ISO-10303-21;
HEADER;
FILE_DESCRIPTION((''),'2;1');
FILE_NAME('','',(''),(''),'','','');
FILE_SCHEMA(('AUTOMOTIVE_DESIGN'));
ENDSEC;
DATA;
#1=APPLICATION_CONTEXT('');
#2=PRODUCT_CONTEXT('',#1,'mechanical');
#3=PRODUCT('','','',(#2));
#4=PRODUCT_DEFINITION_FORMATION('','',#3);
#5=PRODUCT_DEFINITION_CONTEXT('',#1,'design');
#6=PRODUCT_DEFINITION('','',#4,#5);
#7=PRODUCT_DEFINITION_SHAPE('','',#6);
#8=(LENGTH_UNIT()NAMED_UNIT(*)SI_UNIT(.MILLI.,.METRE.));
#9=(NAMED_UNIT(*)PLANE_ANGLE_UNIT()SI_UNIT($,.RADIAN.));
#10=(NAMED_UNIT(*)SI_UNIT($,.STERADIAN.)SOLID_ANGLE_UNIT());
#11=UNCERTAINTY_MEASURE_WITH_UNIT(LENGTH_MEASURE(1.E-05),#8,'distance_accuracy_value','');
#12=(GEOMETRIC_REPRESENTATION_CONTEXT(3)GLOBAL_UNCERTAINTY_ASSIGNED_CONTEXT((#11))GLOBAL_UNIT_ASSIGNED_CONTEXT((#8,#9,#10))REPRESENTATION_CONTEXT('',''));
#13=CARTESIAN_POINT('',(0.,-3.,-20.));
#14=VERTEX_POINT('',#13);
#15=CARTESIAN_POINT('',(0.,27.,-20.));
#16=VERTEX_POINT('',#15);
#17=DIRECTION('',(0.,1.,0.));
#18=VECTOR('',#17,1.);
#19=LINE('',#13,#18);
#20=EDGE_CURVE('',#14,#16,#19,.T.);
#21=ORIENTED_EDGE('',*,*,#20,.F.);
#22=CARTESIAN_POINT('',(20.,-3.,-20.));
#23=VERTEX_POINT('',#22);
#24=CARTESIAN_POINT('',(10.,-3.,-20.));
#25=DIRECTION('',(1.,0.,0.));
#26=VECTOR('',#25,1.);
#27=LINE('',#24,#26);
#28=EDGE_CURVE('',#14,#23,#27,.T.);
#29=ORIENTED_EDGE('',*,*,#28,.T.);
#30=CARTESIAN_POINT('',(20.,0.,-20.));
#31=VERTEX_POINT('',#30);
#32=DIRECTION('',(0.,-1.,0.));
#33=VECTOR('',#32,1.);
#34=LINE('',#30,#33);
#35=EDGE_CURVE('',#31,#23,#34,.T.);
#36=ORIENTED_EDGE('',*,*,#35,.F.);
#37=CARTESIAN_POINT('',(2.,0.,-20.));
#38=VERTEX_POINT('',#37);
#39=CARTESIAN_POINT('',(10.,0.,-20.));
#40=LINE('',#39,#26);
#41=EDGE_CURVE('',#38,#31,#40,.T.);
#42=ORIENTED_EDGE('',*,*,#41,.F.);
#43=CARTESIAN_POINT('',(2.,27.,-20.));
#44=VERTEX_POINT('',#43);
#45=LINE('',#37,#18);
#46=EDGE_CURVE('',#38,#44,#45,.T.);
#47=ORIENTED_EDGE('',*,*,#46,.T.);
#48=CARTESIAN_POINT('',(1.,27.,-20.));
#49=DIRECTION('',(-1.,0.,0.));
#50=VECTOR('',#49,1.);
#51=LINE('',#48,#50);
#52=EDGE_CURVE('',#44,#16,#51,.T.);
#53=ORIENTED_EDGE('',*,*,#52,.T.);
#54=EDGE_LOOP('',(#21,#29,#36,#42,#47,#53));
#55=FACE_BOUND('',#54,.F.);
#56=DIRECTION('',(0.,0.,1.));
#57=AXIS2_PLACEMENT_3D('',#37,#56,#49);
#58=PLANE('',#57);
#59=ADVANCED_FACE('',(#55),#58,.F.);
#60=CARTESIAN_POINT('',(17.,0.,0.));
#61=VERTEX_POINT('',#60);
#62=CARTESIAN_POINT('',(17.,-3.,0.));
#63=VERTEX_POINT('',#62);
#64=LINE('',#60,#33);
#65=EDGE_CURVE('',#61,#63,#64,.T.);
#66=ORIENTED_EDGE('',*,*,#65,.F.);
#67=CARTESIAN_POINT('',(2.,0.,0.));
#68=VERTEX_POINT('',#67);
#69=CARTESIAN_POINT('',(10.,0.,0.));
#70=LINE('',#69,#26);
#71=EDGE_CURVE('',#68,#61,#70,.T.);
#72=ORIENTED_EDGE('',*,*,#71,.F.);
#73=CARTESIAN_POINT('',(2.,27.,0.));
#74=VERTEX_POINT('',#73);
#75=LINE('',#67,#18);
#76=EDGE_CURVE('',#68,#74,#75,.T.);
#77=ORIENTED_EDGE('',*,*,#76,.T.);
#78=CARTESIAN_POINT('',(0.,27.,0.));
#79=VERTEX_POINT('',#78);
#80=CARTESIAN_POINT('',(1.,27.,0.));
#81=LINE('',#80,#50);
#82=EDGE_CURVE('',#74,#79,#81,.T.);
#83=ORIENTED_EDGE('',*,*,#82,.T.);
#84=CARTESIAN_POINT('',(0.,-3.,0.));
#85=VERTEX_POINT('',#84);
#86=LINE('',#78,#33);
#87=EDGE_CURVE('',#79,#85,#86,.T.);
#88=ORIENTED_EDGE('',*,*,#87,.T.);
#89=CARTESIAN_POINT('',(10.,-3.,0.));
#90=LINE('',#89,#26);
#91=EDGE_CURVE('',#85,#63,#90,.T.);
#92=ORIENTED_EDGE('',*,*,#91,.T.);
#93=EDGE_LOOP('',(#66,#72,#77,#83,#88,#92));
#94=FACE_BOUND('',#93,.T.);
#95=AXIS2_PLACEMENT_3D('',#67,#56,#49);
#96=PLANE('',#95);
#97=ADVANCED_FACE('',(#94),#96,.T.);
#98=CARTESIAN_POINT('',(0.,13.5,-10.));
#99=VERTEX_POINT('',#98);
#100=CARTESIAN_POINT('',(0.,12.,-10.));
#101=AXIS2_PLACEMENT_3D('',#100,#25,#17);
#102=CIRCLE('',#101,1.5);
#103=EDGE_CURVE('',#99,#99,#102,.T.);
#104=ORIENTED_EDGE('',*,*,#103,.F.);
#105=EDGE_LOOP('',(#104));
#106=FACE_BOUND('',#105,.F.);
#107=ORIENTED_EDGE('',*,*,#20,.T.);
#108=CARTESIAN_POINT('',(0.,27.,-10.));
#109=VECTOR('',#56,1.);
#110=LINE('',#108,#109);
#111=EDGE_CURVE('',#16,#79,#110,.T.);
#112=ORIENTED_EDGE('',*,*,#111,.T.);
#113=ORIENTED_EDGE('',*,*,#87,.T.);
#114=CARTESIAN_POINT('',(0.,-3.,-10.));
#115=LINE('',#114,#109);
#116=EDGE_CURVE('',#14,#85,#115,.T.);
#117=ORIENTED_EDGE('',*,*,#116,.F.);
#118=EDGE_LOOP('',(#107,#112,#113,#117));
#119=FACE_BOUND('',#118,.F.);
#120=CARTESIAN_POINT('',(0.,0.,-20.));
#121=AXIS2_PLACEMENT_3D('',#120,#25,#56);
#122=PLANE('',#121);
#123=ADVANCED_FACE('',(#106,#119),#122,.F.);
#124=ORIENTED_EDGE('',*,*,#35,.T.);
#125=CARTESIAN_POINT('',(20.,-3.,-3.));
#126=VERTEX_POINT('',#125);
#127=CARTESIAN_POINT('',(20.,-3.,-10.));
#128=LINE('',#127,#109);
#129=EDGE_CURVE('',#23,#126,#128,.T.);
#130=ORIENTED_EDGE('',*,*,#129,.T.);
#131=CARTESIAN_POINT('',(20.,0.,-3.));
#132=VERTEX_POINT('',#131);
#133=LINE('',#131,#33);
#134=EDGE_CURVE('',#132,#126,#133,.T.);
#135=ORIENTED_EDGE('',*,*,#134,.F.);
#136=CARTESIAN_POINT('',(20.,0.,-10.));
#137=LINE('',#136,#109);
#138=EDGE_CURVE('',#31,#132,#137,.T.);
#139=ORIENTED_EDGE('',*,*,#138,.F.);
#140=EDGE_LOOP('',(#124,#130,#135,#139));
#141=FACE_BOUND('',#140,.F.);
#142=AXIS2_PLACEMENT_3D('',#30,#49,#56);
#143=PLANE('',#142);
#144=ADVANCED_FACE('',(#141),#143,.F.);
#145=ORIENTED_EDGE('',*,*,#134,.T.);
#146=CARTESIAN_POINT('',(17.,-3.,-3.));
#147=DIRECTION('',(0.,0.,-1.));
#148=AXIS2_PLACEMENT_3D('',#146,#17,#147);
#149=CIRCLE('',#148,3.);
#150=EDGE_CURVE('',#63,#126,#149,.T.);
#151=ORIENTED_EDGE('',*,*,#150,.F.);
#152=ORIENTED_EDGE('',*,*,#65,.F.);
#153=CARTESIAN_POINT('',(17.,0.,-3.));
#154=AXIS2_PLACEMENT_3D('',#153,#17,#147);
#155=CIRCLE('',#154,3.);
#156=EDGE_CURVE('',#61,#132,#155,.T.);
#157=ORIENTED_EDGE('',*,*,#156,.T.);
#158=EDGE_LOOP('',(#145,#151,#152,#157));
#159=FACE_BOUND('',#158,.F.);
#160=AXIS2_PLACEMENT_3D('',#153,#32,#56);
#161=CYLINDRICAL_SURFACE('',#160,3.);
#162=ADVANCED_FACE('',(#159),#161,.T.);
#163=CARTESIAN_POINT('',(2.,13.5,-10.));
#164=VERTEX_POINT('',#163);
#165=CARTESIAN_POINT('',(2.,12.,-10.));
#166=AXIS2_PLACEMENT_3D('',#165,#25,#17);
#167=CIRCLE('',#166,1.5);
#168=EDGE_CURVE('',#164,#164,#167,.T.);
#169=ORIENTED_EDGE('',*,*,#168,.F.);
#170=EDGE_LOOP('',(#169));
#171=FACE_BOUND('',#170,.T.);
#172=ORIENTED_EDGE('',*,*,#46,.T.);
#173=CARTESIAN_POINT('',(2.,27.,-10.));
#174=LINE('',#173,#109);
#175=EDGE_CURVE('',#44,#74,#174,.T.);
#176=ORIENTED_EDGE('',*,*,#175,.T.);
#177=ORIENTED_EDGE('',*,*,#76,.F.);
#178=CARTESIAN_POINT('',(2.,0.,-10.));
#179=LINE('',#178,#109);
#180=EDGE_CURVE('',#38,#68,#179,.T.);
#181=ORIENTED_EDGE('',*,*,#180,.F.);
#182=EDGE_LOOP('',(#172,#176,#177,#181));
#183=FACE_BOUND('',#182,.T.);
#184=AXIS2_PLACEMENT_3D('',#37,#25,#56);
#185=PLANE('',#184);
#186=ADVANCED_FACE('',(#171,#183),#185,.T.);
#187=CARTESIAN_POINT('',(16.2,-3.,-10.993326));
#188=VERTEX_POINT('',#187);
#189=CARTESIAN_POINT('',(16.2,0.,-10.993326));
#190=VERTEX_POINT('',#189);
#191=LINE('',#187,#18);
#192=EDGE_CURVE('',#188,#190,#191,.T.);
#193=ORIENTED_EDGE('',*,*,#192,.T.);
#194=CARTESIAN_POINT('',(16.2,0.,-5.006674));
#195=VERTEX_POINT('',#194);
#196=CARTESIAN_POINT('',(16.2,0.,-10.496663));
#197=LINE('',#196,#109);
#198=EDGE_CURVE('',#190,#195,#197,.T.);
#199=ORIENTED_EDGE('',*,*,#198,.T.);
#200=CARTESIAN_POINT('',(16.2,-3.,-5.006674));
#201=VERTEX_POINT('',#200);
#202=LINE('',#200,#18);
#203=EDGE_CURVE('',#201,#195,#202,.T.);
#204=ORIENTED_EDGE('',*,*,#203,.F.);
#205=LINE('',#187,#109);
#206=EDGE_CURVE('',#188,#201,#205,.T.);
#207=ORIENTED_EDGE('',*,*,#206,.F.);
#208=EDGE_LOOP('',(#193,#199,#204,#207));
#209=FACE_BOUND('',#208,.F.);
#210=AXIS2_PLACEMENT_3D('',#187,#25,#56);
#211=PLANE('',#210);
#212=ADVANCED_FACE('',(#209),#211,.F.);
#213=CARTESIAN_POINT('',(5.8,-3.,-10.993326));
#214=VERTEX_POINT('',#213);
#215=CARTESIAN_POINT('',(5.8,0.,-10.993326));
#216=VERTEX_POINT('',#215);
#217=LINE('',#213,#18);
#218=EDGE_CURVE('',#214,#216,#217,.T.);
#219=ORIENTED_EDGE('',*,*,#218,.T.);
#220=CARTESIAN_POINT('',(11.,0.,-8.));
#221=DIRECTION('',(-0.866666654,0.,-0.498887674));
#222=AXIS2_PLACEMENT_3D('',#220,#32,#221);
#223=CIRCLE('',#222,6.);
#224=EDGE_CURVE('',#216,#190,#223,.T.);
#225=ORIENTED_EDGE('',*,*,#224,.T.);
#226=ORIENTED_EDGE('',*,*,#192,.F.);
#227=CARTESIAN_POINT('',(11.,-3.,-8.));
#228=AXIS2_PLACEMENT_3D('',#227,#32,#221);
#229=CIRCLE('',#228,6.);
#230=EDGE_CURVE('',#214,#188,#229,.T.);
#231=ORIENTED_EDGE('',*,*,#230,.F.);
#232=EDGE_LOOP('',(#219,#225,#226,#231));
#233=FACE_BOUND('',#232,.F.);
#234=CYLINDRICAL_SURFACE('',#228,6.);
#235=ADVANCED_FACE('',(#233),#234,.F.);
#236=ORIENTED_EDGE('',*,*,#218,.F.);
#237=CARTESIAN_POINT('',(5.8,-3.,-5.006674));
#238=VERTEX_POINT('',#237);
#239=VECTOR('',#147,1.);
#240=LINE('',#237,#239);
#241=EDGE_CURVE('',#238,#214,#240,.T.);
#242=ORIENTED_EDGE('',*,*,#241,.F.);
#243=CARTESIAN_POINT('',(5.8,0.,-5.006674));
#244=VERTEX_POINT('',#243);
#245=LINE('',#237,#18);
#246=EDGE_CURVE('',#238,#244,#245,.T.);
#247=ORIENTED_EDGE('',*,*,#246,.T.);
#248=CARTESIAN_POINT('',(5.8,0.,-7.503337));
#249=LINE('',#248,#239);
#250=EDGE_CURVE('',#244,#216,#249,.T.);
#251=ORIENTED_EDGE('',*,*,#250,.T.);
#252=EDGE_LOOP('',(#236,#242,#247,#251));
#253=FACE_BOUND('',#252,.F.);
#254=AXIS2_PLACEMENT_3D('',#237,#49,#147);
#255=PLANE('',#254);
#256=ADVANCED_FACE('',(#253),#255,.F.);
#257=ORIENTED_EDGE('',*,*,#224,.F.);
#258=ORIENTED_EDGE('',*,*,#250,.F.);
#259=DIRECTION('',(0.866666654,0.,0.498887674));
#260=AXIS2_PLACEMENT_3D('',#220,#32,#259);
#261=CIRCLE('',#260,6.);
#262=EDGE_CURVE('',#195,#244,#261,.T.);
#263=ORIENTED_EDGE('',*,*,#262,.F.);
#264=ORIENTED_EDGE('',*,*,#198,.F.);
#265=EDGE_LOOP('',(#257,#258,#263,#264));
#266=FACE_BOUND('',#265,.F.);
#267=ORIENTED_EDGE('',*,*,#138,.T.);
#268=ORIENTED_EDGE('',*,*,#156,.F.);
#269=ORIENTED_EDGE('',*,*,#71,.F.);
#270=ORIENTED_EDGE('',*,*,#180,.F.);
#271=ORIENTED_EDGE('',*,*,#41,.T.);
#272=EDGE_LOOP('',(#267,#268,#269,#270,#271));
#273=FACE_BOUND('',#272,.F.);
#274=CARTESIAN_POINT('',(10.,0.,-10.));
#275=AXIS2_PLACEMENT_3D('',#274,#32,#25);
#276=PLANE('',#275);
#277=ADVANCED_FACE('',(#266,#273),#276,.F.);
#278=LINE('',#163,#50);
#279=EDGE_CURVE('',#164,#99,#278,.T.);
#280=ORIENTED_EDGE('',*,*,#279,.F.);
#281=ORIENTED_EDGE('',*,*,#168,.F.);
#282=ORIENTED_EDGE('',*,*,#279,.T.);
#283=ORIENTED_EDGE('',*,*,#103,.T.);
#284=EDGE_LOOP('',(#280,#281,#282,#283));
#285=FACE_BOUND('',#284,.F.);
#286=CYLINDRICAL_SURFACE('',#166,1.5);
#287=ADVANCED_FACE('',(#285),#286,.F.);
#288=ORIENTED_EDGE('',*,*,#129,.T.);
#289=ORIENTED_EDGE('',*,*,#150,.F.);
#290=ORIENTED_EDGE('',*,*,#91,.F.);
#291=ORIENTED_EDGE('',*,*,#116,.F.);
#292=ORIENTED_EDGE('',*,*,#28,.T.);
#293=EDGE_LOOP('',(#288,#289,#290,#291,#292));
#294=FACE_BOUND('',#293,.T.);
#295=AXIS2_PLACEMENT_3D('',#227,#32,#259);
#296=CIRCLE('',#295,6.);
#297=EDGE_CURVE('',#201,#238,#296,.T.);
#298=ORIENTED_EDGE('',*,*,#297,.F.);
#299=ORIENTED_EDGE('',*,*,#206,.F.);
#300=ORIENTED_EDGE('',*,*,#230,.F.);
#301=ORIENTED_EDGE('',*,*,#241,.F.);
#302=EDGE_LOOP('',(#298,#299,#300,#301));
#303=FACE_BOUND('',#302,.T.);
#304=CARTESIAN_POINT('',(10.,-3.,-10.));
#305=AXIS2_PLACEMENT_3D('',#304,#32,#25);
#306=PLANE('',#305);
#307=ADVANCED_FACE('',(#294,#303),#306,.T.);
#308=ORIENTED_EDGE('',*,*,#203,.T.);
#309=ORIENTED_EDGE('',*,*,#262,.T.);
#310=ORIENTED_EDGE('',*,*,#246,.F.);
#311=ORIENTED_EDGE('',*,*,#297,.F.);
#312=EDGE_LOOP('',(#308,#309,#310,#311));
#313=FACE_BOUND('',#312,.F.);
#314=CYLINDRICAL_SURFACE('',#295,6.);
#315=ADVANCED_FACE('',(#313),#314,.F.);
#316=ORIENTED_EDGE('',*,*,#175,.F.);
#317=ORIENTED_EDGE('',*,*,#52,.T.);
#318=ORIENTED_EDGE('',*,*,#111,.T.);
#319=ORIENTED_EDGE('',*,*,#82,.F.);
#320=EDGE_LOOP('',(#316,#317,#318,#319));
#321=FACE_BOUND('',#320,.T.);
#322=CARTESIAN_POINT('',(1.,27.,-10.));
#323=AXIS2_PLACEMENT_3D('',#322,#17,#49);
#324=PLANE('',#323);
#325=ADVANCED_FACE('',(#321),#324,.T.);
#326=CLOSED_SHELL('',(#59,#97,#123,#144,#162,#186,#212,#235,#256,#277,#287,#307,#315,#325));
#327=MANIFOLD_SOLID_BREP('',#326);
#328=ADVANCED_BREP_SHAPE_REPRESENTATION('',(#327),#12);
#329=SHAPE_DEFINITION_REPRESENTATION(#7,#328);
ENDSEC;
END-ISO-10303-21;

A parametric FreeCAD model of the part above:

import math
import FreeCAD as App
import Part
import Sketcher
Q = App.Units.Quantity


def edges_at(feature, points):
    """Names of the edges that pass closest to the given points."""
    edges = feature.Shape.Edges
    near = lambda p: min(range(len(edges)), key=lambda i: edges[i].distToShape(Part.Vertex(*p))[0])
    return sorted({f"Edge{near(p) + 1}" for p in points})


def add_polygon(sketch, points):
    """Adds a closed chain of lines whose ends are joined by coincident constraints."""
    first, n = sketch.GeometryCount, len(points)
    for a, b in zip(points, points[1:] + points[:1]):
        sketch.addGeometry(Part.LineSegment(App.Vector(*a, 0), App.Vector(*b, 0)), False)
    for i in range(n):
        sketch.addConstraint(Sketcher.Constraint("Coincident", first + i, 2, first + (i + 1) % n, 1))

doc = App.newDocument("Part")
body = doc.addObject("PartDesign::Body", "Body")

# Sketch on XZ plane
sketch1 = doc.addObject("Sketcher::SketchObject", "Sketch")
body.addObject(sketch1)
sketch1.AttachmentSupport = (doc.XZ_Plane, [""])
sketch1.MapMode = "FlatFace"
add_polygon(sketch1, [(0, 0), (0, -20), (20, -20), (20, 0)])  # lines 0-3
sketch1.addConstraint(Sketcher.Constraint("Vertical", 0))
sketch1.addConstraint(Sketcher.Constraint("Horizontal", 1))
sketch1.addConstraint(Sketcher.Constraint("Vertical", 2))
sketch1.addConstraint(Sketcher.Constraint("Horizontal", 3))
sketch1.addConstraint(Sketcher.Constraint("Coincident", 3, 2, -1, 1))
sketch1.addConstraint(Sketcher.Constraint("Equal", 3, 0))
sketch1.addConstraint(Sketcher.Constraint("DistanceX", 1, 1, 1, 2, Q("20 mm")))
pad1 = doc.addObject("PartDesign::Pad", "Pad")
body.addObject(pad1)
pad1.Profile = sketch1
pad1.Length = 3

# Sketch on XZ plane
sketch2 = doc.addObject("Sketcher::SketchObject", "Sketch001")
body.addObject(sketch2)
sketch2.AttachmentSupport = (doc.XZ_Plane, [""])
sketch2.MapMode = "FlatFace"
add_polygon(sketch2, [(2, 0), (2, -20), (0, -20), (0, 0)])  # lines 0-3
sketch2.addConstraint(Sketcher.Constraint("Vertical", 0))
sketch2.addConstraint(Sketcher.Constraint("Horizontal", 1))
sketch2.addConstraint(Sketcher.Constraint("Vertical", 2))
sketch2.addConstraint(Sketcher.Constraint("Horizontal", 3))
sketch2.addConstraint(Sketcher.Constraint("Coincident", 2, 2, -1, 1))
sketch2.addConstraint(Sketcher.Constraint("DistanceX", 1, 2, 1, 1, Q("2 mm")))
sketch2.addConstraint(Sketcher.Constraint("DistanceY", 0, 2, 0, 1, Q("20 mm")))
pad2 = doc.addObject("PartDesign::Pad", "Pad001")
body.addObject(pad2)
pad2.Profile = sketch2
pad2.Length = 27
pad2.Reversed = True

# Sketch on XZ plane
sketch3 = doc.addObject("Sketcher::SketchObject", "Sketch002")
body.addObject(sketch3)
sketch3.AttachmentSupport = (doc.XZ_Plane, [""])
sketch3.MapMode = "FlatFace"
sketch3.AttachmentOffset = App.Placement(App.Vector(0, 0, 3), App.Rotation())
sketch3.addGeometry(Part.LineSegment(App.Vector(6, -5, 0), App.Vector(6, -11, 0)), False)
sketch3.addGeometry(Part.ArcOfCircle(Part.Circle(App.Vector(11, -8, 0), App.Vector(0, 0, 1), 6), math.radians(-150), math.radians(-30)), False)
sketch3.addGeometry(Part.LineSegment(App.Vector(16, -11, 0), App.Vector(16, -5, 0)), False)
sketch3.addGeometry(Part.ArcOfCircle(Part.Circle(App.Vector(11, -8, 0), App.Vector(0, 0, 1), 6), math.radians(30), math.radians(150)), False)
sketch3.addConstraint(Sketcher.Constraint("Coincident", 0, 2, 1, 1))
sketch3.addConstraint(Sketcher.Constraint("Coincident", 1, 2, 2, 1))
sketch3.addConstraint(Sketcher.Constraint("Coincident", 2, 2, 3, 1))
sketch3.addConstraint(Sketcher.Constraint("Coincident", 3, 2, 0, 1))
sketch3.addConstraint(Sketcher.Constraint("Vertical", 0))
sketch3.addConstraint(Sketcher.Constraint("Vertical", 2))
sketch3.addConstraint(Sketcher.Constraint("Coincident", 3, 3, 1, 3))
sketch3.addConstraint(Sketcher.Constraint("Equal", 1, 3))
sketch3.addConstraint(Sketcher.Constraint("Horizontal", 0, 2, 1, 2))
sketch3.addConstraint(Sketcher.Constraint("Radius", 1, Q("6 mm")))
sketch3.addConstraint(Sketcher.Constraint("DistanceX", -1, 1, 1, 3, Q("11 mm")))
sketch3.addConstraint(Sketcher.Constraint("DistanceY", 1, 3, -1, 1, Q("8 mm")))
sketch3.addConstraint(Sketcher.Constraint("DistanceX", -1, 1, 0, 2, Q("5.8 mm")))
pocket1 = doc.addObject("PartDesign::Pocket", "Pocket")
body.addObject(pocket1)
pocket1.Profile = sketch3
pocket1.Length = 25

# Sketch on YZ plane
sketch4 = doc.addObject("Sketcher::SketchObject", "Sketch003")
body.addObject(sketch4)
sketch4.AttachmentSupport = (doc.YZ_Plane, [""])
sketch4.MapMode = "FlatFace"
sketch4.AttachmentOffset = App.Placement(App.Vector(0, 0, 2), App.Rotation())
sketch4.addGeometry(Part.Circle(App.Vector(12, -10, 0), App.Vector(0, 0, 1), 1.5), False)
sketch4.addConstraint(Sketcher.Constraint("Diameter", 0, Q("3 mm")))
sketch4.addConstraint(Sketcher.Constraint("DistanceX", -1, 1, 0, 3, Q("12 mm")))
sketch4.addConstraint(Sketcher.Constraint("DistanceY", 0, 3, -1, 1, Q("10 mm")))
pocket2 = doc.addObject("PartDesign::Pocket", "Pocket001")
body.addObject(pocket2)
pocket2.Profile = sketch4
pocket2.Length = 25
doc.recompute()

fillet = doc.addObject("PartDesign::Fillet", "Fillet")
body.addObject(fillet)
fillet.Base = (pocket2, edges_at(pocket2, [(20, -1.5, 0)]))
fillet.Radius = 3

doc.recompute()
